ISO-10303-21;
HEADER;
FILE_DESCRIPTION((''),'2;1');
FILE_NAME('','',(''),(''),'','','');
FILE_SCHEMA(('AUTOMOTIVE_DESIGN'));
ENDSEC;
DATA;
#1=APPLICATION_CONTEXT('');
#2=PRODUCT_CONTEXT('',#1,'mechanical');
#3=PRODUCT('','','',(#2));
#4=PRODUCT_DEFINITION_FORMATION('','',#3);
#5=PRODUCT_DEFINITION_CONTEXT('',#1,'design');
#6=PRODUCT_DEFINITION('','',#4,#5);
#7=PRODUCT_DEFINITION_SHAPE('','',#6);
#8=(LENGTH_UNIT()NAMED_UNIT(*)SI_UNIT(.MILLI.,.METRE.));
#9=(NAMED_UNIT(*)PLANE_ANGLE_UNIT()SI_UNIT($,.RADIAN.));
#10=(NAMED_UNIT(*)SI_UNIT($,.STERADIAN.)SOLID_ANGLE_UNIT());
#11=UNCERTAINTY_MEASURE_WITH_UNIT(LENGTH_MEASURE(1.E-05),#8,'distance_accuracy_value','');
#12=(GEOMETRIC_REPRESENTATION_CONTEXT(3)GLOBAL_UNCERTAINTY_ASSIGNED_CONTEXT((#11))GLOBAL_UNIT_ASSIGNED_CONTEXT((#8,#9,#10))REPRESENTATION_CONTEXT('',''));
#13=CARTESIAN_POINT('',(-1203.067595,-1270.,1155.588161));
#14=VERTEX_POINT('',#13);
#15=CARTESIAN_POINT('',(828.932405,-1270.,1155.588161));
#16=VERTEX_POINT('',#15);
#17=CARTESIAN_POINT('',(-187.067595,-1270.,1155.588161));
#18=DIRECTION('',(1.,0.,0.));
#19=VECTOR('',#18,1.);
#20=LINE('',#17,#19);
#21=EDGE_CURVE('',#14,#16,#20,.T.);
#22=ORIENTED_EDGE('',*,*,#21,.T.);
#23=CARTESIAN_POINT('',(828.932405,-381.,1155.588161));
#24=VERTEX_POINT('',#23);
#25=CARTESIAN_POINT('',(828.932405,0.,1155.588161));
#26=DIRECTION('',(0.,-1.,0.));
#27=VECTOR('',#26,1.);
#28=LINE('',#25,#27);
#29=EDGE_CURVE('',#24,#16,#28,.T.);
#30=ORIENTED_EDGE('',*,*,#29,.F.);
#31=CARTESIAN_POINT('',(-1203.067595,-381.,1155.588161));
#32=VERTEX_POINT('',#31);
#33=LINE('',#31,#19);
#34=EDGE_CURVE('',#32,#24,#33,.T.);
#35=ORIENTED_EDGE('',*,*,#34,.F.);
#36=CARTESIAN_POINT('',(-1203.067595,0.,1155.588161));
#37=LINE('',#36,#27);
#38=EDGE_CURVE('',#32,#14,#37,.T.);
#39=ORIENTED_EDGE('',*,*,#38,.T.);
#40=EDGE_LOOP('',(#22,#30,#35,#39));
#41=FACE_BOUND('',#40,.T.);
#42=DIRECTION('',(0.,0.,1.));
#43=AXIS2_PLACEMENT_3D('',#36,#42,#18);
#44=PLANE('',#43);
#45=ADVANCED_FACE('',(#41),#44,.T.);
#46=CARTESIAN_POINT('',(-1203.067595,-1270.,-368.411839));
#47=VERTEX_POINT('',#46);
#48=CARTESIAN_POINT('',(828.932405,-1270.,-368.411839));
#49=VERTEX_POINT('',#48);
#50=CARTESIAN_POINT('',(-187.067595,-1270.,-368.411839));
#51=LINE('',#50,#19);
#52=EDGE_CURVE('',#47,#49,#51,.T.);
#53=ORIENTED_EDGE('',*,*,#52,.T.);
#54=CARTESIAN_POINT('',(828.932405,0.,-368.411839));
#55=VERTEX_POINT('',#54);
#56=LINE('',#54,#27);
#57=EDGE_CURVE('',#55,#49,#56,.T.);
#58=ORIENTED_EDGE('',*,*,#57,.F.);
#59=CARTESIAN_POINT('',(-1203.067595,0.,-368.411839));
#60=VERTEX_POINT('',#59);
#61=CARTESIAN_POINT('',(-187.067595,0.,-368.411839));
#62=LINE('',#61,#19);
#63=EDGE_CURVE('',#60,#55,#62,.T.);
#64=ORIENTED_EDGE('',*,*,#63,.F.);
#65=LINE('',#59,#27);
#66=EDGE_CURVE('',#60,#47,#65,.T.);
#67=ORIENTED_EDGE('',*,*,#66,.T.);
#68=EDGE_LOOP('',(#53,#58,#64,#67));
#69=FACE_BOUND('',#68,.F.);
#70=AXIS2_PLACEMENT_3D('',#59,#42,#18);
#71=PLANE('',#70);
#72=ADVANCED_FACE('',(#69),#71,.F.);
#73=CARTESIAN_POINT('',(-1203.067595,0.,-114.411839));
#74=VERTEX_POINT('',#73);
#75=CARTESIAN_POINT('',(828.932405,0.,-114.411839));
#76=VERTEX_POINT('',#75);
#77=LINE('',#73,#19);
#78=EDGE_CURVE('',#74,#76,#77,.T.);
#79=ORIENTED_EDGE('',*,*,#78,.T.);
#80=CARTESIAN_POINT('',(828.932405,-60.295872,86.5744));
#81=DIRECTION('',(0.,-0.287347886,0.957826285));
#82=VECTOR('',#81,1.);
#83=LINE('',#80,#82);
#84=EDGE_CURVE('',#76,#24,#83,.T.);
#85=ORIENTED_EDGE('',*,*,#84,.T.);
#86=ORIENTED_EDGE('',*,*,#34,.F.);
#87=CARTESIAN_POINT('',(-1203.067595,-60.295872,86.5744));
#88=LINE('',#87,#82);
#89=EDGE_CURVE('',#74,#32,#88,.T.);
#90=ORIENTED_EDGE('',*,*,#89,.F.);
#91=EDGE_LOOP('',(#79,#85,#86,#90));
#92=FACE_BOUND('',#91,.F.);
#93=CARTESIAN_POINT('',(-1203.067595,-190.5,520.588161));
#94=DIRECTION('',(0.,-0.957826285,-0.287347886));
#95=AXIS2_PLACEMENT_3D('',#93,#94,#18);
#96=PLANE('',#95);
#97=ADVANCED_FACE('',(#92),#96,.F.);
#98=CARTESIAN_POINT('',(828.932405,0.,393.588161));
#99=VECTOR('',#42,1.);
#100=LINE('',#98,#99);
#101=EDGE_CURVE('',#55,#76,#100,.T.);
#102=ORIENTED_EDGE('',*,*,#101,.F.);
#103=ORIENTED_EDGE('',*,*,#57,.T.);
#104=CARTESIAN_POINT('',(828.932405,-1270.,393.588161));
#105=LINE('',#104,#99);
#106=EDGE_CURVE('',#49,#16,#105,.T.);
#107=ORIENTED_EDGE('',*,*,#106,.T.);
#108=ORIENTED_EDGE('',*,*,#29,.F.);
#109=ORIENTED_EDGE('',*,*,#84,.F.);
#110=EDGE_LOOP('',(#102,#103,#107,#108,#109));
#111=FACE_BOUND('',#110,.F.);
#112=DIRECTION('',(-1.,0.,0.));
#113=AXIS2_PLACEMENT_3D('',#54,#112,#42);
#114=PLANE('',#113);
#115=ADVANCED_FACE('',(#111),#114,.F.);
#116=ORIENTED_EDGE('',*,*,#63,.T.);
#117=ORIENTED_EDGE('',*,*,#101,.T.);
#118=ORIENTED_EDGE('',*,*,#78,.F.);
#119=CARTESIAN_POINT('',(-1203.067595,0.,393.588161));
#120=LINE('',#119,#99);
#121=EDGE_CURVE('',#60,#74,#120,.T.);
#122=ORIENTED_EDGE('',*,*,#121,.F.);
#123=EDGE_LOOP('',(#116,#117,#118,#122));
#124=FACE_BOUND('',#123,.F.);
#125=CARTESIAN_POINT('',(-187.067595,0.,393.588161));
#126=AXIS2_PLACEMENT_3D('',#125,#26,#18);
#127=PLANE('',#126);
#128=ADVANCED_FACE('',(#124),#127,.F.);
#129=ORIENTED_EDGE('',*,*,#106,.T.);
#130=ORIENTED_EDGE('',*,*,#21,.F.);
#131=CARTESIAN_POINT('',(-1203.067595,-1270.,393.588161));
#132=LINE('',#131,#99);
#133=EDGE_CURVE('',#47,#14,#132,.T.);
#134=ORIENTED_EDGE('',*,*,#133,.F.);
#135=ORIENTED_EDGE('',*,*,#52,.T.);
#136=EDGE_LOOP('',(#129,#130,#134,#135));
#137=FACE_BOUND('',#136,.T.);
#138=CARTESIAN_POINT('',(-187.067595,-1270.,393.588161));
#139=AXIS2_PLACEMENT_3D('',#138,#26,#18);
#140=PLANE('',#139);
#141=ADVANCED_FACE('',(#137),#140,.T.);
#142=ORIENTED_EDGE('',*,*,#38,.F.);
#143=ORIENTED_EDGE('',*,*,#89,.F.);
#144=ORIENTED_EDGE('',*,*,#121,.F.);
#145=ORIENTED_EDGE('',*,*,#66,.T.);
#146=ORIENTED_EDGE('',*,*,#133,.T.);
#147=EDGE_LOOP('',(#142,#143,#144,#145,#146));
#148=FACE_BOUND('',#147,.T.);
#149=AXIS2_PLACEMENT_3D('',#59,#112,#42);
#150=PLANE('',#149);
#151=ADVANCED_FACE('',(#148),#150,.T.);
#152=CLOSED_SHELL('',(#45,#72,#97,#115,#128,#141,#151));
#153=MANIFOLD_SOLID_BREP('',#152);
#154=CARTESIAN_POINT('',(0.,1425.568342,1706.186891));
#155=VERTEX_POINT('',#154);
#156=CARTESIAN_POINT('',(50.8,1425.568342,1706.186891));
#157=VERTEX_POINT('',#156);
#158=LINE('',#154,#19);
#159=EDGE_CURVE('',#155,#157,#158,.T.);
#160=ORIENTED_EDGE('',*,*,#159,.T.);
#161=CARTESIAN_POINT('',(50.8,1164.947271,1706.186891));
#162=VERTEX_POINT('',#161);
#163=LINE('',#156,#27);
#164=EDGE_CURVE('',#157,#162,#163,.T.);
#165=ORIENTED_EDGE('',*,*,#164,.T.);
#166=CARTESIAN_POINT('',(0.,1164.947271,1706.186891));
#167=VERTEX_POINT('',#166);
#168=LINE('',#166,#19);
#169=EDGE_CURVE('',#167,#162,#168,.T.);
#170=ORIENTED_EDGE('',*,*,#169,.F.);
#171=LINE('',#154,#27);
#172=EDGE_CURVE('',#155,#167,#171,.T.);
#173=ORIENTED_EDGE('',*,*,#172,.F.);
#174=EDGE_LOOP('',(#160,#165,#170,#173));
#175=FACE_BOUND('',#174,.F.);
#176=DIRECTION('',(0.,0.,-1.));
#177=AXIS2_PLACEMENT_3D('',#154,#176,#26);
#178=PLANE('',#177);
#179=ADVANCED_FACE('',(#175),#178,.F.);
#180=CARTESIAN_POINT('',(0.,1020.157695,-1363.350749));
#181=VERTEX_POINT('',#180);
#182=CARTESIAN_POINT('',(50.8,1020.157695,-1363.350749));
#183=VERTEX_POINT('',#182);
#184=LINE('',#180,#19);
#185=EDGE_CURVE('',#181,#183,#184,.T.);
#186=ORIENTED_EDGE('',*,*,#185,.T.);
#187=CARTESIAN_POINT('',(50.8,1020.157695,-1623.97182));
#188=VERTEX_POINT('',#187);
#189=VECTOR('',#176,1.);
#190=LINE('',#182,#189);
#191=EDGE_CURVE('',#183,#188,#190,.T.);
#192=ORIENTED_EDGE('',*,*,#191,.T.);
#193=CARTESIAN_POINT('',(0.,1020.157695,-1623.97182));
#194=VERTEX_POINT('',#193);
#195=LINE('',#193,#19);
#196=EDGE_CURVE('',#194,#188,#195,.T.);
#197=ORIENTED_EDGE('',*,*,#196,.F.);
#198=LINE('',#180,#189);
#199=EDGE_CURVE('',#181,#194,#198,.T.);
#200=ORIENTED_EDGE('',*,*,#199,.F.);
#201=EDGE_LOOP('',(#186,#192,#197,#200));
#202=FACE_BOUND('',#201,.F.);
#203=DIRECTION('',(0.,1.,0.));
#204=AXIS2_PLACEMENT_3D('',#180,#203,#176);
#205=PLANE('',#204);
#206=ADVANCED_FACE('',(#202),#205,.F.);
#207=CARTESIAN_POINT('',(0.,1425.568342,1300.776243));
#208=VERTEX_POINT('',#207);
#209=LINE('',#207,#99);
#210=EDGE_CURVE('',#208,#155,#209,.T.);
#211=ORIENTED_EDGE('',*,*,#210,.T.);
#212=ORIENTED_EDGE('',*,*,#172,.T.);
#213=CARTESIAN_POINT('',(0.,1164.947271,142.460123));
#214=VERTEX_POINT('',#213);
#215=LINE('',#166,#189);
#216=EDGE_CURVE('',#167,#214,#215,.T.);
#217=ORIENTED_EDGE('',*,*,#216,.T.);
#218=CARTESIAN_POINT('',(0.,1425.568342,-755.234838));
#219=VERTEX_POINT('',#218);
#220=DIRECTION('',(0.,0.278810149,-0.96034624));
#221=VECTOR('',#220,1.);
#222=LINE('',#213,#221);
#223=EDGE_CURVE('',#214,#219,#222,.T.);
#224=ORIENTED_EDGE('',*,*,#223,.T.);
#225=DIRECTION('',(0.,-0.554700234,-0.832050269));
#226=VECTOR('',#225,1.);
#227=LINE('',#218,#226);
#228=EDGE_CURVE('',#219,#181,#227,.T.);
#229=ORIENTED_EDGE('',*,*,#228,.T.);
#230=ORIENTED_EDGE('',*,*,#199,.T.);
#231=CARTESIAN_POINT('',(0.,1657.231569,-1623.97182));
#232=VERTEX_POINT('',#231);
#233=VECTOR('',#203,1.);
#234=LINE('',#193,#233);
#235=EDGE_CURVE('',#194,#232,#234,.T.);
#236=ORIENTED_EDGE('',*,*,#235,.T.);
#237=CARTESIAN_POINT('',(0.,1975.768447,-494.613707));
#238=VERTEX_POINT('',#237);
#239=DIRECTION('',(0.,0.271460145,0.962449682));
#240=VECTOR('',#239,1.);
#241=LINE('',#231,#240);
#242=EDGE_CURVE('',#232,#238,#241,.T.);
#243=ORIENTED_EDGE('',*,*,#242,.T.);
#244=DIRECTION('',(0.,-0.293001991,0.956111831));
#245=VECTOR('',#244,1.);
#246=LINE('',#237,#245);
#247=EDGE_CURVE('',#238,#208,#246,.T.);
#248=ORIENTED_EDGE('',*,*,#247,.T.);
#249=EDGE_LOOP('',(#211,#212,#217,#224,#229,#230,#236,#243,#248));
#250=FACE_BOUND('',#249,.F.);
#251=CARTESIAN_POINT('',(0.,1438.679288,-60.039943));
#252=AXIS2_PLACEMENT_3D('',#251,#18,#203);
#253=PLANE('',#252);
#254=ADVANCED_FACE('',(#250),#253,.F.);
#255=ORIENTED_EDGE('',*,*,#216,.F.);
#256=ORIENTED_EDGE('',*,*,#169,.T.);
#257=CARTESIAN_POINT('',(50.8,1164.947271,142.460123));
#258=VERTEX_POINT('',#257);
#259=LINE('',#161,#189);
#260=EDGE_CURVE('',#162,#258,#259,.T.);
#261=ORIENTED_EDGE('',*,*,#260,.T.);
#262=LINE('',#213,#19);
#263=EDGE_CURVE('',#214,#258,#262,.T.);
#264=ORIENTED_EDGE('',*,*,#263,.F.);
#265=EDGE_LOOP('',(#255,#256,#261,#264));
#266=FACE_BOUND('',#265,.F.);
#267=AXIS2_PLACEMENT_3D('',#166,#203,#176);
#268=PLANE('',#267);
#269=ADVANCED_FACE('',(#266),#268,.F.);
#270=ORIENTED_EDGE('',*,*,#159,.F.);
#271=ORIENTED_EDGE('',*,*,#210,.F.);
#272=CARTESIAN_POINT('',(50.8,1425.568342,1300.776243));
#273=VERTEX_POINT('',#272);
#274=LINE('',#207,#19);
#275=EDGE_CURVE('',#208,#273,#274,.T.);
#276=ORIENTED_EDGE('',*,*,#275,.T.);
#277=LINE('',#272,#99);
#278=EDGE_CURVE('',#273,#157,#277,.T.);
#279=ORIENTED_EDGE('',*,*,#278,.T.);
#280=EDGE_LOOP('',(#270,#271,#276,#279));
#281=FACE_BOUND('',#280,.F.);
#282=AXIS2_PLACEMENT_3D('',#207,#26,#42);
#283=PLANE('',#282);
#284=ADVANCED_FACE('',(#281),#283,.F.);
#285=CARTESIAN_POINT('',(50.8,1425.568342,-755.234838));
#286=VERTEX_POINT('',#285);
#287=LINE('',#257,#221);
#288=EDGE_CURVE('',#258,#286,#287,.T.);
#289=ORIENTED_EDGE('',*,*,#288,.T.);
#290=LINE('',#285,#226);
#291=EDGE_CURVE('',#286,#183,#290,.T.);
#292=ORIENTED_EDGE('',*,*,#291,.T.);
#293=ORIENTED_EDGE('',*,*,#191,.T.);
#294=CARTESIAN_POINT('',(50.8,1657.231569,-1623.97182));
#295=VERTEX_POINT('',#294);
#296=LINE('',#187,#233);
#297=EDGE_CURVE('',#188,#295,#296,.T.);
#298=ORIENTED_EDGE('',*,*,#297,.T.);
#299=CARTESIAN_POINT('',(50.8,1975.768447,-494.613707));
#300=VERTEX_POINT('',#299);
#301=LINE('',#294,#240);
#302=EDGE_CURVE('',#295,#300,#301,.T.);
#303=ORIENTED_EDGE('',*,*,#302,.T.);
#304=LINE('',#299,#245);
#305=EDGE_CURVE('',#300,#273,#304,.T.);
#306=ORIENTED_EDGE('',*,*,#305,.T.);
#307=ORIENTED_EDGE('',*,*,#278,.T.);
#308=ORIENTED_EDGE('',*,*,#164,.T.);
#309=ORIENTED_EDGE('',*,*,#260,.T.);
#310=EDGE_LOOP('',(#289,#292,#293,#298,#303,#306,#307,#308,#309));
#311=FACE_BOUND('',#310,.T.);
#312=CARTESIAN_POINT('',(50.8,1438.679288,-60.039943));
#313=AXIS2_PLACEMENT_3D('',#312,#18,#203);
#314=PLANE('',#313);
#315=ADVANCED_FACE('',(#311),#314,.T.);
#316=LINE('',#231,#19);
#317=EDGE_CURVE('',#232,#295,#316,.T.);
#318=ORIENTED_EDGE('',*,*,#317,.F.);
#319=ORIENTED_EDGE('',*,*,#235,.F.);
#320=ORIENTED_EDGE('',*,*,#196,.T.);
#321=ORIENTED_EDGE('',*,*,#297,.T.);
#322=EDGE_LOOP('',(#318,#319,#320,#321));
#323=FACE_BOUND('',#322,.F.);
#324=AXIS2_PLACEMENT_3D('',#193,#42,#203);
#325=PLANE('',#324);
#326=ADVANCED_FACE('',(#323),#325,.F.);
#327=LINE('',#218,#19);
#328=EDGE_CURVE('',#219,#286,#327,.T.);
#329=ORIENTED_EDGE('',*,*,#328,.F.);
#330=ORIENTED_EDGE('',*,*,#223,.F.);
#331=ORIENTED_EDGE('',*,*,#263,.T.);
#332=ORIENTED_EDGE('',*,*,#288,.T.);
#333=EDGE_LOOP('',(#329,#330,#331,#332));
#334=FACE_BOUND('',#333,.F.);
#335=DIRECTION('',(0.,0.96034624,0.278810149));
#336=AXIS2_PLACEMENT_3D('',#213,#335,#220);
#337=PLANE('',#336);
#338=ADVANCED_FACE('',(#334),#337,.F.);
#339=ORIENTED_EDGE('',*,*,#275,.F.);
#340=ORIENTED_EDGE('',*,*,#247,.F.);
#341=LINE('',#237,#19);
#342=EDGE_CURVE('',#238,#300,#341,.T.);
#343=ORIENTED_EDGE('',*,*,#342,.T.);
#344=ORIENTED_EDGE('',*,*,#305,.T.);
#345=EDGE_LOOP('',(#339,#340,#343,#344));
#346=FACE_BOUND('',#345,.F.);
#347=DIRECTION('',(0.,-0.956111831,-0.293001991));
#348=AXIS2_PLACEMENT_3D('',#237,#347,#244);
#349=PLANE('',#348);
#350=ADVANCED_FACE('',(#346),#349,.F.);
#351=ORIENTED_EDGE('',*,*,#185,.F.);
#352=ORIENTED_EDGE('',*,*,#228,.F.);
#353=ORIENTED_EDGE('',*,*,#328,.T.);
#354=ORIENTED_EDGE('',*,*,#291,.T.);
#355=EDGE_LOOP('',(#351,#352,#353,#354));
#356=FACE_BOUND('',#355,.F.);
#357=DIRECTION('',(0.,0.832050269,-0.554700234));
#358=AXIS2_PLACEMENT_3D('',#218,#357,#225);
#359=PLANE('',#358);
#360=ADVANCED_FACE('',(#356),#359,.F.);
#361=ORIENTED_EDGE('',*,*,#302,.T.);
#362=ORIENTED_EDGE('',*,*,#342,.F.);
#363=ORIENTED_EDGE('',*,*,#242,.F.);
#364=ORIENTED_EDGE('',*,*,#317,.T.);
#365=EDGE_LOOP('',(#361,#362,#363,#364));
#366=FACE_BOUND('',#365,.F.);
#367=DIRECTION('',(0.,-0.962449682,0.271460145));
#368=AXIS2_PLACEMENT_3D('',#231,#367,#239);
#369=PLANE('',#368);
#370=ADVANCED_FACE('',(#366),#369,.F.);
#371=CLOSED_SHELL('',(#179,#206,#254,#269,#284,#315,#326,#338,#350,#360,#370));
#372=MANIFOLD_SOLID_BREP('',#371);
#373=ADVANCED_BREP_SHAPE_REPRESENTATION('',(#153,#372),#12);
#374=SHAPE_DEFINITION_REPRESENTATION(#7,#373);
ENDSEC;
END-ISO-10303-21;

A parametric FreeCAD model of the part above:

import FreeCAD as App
import Part
import Sketcher
Q = App.Units.Quantity


def edges_at(feature, points):
    """Names of the edges that pass closest to the given points."""
    edges = feature.Shape.Edges
    near = lambda p: min(range(len(edges)), key=lambda i: edges[i].distToShape(Part.Vertex(*p))[0])
    return sorted({f"Edge{near(p) + 1}" for p in points})


def add_polygon(sketch, points):
    """Adds a closed chain of lines whose ends are joined by coincident constraints."""
    first, n = sketch.GeometryCount, len(points)
    for a, b in zip(points, points[1:] + points[:1]):
        sketch.addGeometry(Part.LineSegment(App.Vector(*a, 0), App.Vector(*b, 0)), False)
    for i in range(n):
        sketch.addConstraint(Sketcher.Constraint("Coincident", first + i, 2, first + (i + 1) % n, 1))

doc = App.newDocument("Part")
body = doc.addObject("PartDesign::Body", "Body")

# Sketch on XZ plane
sketch1 = doc.addObject("Sketcher::SketchObject", "Sketch")
body.addObject(sketch1)
sketch1.AttachmentSupport = (doc.XZ_Plane, [""])
sketch1.MapMode = "FlatFace"
add_polygon(sketch1, [(-1203, 1156), (-1203, -368), (829, -368), (829, 1156)])  # lines 0-3
sketch1.addConstraint([
    Sketcher.Constraint("Vertical", 0),
    Sketcher.Constraint("Horizontal", 1),
    Sketcher.Constraint("Vertical", 2),
    Sketcher.Constraint("Horizontal", 3),
    Sketcher.Constraint("DistanceX", 1, 1, 1, 2, Q("80 in")),
    Sketcher.Constraint("DistanceY", 0, 2, 0, 1, Q("60 in")),
    Sketcher.Constraint("DistanceY", 0, 2, -1, 1, 368.411839),
    Sketcher.Constraint("DistanceX", 0, 2, -1, 1, 1203.067595),
])
pad1 = doc.addObject("PartDesign::Pad", "Pad")
body.addObject(pad1)
pad1.Profile = sketch1
pad1.Length = Q("50 in")
doc.recompute()

chamfer = doc.addObject("PartDesign::Chamfer", "Chamfer")
body.addObject(chamfer)
chamfer.Base = (pad1, edges_at(pad1, [(-187.068, 0, 1155.588)]))
chamfer.ChamferType = "Two distances"
chamfer.Size = Q("50 in")
chamfer.Size2 = Q("15 in")
chamfer.FlipDirection = True
body2 = doc.addObject("PartDesign::Body", "Body001")

# Sketch on YZ plane
sketch2 = doc.addObject("Sketcher::SketchObject", "Sketch001")
body2.addObject(sketch2)
sketch2.AttachmentSupport = (doc.getObject("YZ_Plane001"), [""])
sketch2.MapMode = "FlatFace"
add_polygon(sketch2, [(1426, 1301), (1426, 1706), (1165, 1706), (1165, 142), (1426, -755), (1020, -1363), (1020, -1624), (1657, -1624), (1976, -495)])  # lines 0-8
sketch2.addConstraint([
    Sketcher.Constraint("Vertical", 0),
    Sketcher.Constraint("Horizontal", 1),
    Sketcher.Constraint("Vertical", 2),
    Sketcher.Constraint("Vertical", 5),
    Sketcher.Constraint("Horizontal", 6),
    Sketcher.Constraint("Vertical", 0, 2, 3, 2),
    Sketcher.Constraint("Equal", 1, 5),
    Sketcher.Constraint("Distance", 8, 1877.803299),
    Sketcher.Constraint("DistanceX", 1, 2, 1, 1, 260.621071),
    Sketcher.Constraint("Distance", 3, 934.761779),
    Sketcher.Constraint("Distance", 4, 730.864389),
    Sketcher.Constraint("DistanceX", 6, 1, 6, 2, 637.073874),
    Sketcher.Constraint("DistanceY", 0, 1, 0, 2, 405.410647),
    Sketcher.Constraint("DistanceY", 2, 2, 2, 1, 1563.726768),
    Sketcher.Constraint("DistanceY", -1, 1, 0, 2, 1706.186891),
    Sketcher.Constraint("DistanceX", -1, 1, 1, 2, 1164.947271),
    Sketcher.Constraint("DistanceY", 4, 2, -1, 1, 1363.350749),
    Sketcher.Constraint("DistanceY", 3, 2, 7, 2, 260.62113),
])
pad2 = doc.addObject("PartDesign::Pad", "Pad001")
body2.addObject(pad2)
pad2.Profile = sketch2
pad2.Length = Q("2 in")

doc.recompute()
